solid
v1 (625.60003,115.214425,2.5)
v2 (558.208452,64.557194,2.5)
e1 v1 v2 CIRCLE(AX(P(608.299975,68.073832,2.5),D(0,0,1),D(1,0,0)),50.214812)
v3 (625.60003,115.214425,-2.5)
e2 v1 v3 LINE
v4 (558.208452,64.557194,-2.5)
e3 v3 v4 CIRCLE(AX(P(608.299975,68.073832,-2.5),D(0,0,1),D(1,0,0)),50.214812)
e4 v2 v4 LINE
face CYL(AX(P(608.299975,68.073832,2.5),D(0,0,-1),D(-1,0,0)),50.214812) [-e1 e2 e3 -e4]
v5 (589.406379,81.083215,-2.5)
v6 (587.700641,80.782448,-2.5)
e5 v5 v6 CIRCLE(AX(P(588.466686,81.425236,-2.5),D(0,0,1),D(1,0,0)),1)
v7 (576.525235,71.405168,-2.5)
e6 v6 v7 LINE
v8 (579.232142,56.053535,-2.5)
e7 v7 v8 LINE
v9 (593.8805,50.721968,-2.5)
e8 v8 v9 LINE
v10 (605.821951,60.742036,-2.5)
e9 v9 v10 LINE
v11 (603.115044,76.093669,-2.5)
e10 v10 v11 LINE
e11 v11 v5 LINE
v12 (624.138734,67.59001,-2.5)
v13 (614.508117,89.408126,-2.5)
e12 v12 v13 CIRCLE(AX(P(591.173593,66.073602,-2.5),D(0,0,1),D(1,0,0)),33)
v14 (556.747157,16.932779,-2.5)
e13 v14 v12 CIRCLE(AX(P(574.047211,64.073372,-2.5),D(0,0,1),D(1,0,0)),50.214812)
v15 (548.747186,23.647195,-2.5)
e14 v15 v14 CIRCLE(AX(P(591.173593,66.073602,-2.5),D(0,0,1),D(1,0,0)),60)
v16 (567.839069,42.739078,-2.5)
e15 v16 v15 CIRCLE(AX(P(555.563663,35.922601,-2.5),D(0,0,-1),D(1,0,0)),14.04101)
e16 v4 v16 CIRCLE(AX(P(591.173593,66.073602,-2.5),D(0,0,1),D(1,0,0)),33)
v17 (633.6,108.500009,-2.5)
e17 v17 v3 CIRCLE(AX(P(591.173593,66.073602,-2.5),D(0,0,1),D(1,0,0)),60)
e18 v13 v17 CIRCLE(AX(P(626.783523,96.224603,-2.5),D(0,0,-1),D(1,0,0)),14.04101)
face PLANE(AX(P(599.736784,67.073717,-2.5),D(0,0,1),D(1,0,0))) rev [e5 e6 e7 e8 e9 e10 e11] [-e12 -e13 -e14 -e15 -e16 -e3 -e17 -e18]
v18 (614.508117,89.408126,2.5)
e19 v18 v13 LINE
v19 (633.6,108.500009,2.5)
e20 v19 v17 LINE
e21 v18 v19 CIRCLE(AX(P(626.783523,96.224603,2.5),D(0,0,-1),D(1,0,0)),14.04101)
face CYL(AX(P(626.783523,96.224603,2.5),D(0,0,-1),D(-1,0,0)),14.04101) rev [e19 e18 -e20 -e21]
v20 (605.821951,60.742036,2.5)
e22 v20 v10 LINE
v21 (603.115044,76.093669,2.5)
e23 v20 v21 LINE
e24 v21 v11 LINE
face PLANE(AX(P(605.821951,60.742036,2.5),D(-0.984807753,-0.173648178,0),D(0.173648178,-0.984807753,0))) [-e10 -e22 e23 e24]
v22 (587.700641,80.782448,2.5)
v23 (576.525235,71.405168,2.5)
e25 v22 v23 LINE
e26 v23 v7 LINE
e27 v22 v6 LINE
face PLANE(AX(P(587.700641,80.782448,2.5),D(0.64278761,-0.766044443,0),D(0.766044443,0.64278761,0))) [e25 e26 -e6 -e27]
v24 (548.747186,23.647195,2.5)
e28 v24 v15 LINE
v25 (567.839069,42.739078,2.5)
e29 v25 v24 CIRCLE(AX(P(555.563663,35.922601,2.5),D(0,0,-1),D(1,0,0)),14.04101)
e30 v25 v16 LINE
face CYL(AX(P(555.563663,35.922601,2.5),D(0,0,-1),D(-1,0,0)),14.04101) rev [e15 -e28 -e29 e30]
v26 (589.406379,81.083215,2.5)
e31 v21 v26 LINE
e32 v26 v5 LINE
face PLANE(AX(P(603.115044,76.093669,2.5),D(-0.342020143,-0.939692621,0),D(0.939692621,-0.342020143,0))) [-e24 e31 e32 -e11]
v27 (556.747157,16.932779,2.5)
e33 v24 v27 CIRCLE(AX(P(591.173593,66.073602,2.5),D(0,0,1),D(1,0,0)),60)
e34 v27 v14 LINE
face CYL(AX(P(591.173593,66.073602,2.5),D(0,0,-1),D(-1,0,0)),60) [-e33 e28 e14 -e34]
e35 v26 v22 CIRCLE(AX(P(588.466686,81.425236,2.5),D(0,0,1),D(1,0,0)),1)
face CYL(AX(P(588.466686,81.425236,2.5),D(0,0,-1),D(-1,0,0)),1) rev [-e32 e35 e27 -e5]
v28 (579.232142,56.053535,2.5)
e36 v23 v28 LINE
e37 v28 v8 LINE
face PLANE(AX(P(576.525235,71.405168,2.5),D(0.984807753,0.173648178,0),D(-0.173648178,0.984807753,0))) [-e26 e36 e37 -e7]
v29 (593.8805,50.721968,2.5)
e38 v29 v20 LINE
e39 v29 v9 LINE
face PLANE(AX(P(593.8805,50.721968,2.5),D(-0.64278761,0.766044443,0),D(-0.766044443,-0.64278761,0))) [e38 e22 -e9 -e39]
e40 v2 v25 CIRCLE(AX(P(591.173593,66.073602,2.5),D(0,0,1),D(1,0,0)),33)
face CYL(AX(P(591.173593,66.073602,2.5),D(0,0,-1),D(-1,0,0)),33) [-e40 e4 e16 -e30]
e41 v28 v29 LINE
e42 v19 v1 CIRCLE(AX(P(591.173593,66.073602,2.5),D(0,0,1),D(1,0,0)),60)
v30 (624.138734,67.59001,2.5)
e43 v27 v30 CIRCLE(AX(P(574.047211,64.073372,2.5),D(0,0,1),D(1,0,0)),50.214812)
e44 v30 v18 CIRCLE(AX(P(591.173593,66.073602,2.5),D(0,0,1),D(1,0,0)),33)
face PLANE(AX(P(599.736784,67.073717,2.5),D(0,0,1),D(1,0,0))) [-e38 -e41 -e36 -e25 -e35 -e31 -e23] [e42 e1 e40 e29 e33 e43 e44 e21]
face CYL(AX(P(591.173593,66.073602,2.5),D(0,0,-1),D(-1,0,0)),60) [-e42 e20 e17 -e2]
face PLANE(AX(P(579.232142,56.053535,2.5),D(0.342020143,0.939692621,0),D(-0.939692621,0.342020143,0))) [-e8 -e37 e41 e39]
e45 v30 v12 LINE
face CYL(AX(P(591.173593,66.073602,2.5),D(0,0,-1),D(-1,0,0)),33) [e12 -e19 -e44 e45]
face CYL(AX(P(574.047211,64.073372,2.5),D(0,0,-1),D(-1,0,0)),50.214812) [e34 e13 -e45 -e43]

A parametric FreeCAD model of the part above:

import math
import FreeCAD as App
import Part
import Sketcher

V = App.Vector
Q = App.Units.Quantity

doc = App.newDocument("Part")
body = doc.addObject("PartDesign::Body", "Body")

sketch1 = body.newObject("Sketcher::SketchObject", "Sketch")
sketch1.AttachmentSupport = (doc.getObject("XY_Plane"), [""])
sketch1.MapMode = "FlatFace"
sketch1.addGeometry([
    Part.ArcOfCircle(Part.Circle(V(608.3, 68.1, 0), V(0, 0, 1), 50.2), math.radians(70), math.radians(184)),
    Part.ArcOfCircle(Part.Circle(V(591.2, 66.1, 0), V(0, 0, 1), 33), math.radians(-177), math.radians(-135)),
    Part.ArcOfCircle(Part.Circle(V(555.6, 35.9, 0), V(0, 0, 1), 14), math.radians(-119), math.radians(29)),
    Part.ArcOfCircle(Part.Circle(V(591.2, 66.1, 0), V(0, 0, 1), 60), math.radians(-135), math.radians(-125.01)),
    Part.ArcOfCircle(Part.Circle(V(574, 64.1, 0), V(0, 0, 1), 50.2), math.radians(-110), math.radians(4)),
    Part.ArcOfCircle(Part.Circle(V(591.2, 66.1, 0), V(0, 0, 1), 33), math.radians(3), math.radians(45)),
    Part.ArcOfCircle(Part.Circle(V(626.8, 96.2, 0), V(0, 0, 1), 14), math.radians(61), math.radians(209)),
    Part.ArcOfCircle(Part.Circle(V(591.2, 66.1, 0), V(0, 0, 1), 60), math.radians(45), math.radians(54.99)),
    Part.LineSegment(V(589.4, 81.1, 0), V(603.1, 76.1, 0)),
    Part.LineSegment(V(603.1, 76.1, 0), V(605.8, 60.7, 0)),
    Part.LineSegment(V(605.8, 60.7, 0), V(593.9, 50.7, 0)),
    Part.LineSegment(V(593.9, 50.7, 0), V(579.2, 56.1, 0)),
    Part.LineSegment(V(579.2, 56.1, 0), V(576.5, 71.4, 0)),
    Part.LineSegment(V(576.5, 71.4, 0), V(587.7, 80.8, 0)),
    Part.ArcOfCircle(Part.Circle(V(588.5, 81.4, 0), V(0, 0, 1), 1), math.radians(-20), math.radians(220)),
], False)
sketch1.addConstraint([
    Sketcher.Constraint("Coincident", 0, 2, 1, 1),
    Sketcher.Constraint("Coincident", 1, 2, 2, 2),
    Sketcher.Constraint("Coincident", 2, 1, 3, 1),
    Sketcher.Constraint("Coincident", 3, 2, 4, 1),
    Sketcher.Constraint("Coincident", 4, 2, 5, 1),
    Sketcher.Constraint("Coincident", 5, 2, 6, 2),
    Sketcher.Constraint("Coincident", 6, 1, 7, 1),
    Sketcher.Constraint("Coincident", 7, 2, 0, 1),
    Sketcher.Constraint("Coincident", 8, 2, 9, 1),
    Sketcher.Constraint("Coincident", 9, 2, 10, 1),
    Sketcher.Constraint("Coincident", 10, 2, 11, 1),
    Sketcher.Constraint("Coincident", 11, 2, 12, 1),
    Sketcher.Constraint("Coincident", 12, 2, 13, 1),
    Sketcher.Constraint("Coincident", 13, 2, 14, 2),
    Sketcher.Constraint("Coincident", 14, 1, 8, 1),
    Sketcher.Constraint("Coincident", 3, 3, 1, 3),
    Sketcher.Constraint("Coincident", 5, 3, 1, 3),
    Sketcher.Constraint("Coincident", 7, 3, 1, 3),
    Sketcher.Constraint("Equal", 0, 4),
    Sketcher.Constraint("Equal", 1, 5),
    Sketcher.Constraint("Equal", 2, 6),
    Sketcher.Constraint("Equal", 3, 7),
    Sketcher.Constraint("Parallel", 8, 11),
    Sketcher.Constraint("Parallel", 9, 12),
    Sketcher.Constraint("Parallel", 10, 13),
    Sketcher.Constraint("Equal", 9, 10),
    Sketcher.Constraint("Equal", 10, 11),
    Sketcher.Constraint("Equal", 11, 12),
    Sketcher.Constraint("Equal", 8, 13),
    Sketcher.Constraint("Radius", 1, Q("33 mm")),
    Sketcher.Constraint("Radius", 3, Q("60 mm")),
    Sketcher.Constraint("Radius", 14, Q("1 mm")),
    Sketcher.Constraint("Angle", 8, Q("-20 deg")),
    Sketcher.Constraint("Angle", 9, Q("-80 deg")),
    Sketcher.Constraint("Angle", 10, Q("-140 deg")),
    Sketcher.Constraint("DistanceX", -1, 1, 6, 1, Q("633.6 mm")),
    Sketcher.Constraint("Radius", 2, Q("14.04101 mm")),
    Sketcher.Constraint("DistanceY", 2, 1, 0, 2, Q("40.909999 mm")),
    Sketcher.Constraint("DistanceY", 4, 2, 6, 1, Q("40.909999 mm")),
    Sketcher.Constraint("Radius", 0, Q("50.214812 mm")),
    Sketcher.Constraint("DistanceY", 2, 3, 1, 3, Q("30.151001 mm")),
    Sketcher.Constraint("DistanceY", 1, 3, 6, 3, Q("30.151001 mm")),
    Sketcher.Constraint("DistanceY", -1, 1, 1, 3, Q("66.073602 mm")),
    Sketcher.Constraint("DistanceX", -1, 1, 10, 2, Q("593.8805 mm")),
    Sketcher.Constraint("DistanceY", 3, 2, 1, 2, Q("25.806299 mm")),
    Sketcher.Constraint("DistanceY", 5, 2, 7, 2, Q("25.806299 mm")),
    Sketcher.Constraint("DistanceX", -1, 1, 4, 3, Q("574.047211 mm")),
    Sketcher.Constraint("DistanceY", -1, 1, 4, 3, Q("64.073372 mm")),
    Sketcher.Constraint("DistanceY", -1, 1, 8, 2, Q("76.093669 mm")),
    Sketcher.Constraint("DistanceX", -1, 1, 9, 2, Q("605.821951 mm")),
    Sketcher.Constraint("DistanceX", -1, 1, 13, 2, Q("587.700641 mm")),
])
pad1 = body.newObject("PartDesign::Pad", "Pad")
pad1.Profile = sketch1
pad1.Length = 5
pad1.Midplane = True

doc.recompute()
